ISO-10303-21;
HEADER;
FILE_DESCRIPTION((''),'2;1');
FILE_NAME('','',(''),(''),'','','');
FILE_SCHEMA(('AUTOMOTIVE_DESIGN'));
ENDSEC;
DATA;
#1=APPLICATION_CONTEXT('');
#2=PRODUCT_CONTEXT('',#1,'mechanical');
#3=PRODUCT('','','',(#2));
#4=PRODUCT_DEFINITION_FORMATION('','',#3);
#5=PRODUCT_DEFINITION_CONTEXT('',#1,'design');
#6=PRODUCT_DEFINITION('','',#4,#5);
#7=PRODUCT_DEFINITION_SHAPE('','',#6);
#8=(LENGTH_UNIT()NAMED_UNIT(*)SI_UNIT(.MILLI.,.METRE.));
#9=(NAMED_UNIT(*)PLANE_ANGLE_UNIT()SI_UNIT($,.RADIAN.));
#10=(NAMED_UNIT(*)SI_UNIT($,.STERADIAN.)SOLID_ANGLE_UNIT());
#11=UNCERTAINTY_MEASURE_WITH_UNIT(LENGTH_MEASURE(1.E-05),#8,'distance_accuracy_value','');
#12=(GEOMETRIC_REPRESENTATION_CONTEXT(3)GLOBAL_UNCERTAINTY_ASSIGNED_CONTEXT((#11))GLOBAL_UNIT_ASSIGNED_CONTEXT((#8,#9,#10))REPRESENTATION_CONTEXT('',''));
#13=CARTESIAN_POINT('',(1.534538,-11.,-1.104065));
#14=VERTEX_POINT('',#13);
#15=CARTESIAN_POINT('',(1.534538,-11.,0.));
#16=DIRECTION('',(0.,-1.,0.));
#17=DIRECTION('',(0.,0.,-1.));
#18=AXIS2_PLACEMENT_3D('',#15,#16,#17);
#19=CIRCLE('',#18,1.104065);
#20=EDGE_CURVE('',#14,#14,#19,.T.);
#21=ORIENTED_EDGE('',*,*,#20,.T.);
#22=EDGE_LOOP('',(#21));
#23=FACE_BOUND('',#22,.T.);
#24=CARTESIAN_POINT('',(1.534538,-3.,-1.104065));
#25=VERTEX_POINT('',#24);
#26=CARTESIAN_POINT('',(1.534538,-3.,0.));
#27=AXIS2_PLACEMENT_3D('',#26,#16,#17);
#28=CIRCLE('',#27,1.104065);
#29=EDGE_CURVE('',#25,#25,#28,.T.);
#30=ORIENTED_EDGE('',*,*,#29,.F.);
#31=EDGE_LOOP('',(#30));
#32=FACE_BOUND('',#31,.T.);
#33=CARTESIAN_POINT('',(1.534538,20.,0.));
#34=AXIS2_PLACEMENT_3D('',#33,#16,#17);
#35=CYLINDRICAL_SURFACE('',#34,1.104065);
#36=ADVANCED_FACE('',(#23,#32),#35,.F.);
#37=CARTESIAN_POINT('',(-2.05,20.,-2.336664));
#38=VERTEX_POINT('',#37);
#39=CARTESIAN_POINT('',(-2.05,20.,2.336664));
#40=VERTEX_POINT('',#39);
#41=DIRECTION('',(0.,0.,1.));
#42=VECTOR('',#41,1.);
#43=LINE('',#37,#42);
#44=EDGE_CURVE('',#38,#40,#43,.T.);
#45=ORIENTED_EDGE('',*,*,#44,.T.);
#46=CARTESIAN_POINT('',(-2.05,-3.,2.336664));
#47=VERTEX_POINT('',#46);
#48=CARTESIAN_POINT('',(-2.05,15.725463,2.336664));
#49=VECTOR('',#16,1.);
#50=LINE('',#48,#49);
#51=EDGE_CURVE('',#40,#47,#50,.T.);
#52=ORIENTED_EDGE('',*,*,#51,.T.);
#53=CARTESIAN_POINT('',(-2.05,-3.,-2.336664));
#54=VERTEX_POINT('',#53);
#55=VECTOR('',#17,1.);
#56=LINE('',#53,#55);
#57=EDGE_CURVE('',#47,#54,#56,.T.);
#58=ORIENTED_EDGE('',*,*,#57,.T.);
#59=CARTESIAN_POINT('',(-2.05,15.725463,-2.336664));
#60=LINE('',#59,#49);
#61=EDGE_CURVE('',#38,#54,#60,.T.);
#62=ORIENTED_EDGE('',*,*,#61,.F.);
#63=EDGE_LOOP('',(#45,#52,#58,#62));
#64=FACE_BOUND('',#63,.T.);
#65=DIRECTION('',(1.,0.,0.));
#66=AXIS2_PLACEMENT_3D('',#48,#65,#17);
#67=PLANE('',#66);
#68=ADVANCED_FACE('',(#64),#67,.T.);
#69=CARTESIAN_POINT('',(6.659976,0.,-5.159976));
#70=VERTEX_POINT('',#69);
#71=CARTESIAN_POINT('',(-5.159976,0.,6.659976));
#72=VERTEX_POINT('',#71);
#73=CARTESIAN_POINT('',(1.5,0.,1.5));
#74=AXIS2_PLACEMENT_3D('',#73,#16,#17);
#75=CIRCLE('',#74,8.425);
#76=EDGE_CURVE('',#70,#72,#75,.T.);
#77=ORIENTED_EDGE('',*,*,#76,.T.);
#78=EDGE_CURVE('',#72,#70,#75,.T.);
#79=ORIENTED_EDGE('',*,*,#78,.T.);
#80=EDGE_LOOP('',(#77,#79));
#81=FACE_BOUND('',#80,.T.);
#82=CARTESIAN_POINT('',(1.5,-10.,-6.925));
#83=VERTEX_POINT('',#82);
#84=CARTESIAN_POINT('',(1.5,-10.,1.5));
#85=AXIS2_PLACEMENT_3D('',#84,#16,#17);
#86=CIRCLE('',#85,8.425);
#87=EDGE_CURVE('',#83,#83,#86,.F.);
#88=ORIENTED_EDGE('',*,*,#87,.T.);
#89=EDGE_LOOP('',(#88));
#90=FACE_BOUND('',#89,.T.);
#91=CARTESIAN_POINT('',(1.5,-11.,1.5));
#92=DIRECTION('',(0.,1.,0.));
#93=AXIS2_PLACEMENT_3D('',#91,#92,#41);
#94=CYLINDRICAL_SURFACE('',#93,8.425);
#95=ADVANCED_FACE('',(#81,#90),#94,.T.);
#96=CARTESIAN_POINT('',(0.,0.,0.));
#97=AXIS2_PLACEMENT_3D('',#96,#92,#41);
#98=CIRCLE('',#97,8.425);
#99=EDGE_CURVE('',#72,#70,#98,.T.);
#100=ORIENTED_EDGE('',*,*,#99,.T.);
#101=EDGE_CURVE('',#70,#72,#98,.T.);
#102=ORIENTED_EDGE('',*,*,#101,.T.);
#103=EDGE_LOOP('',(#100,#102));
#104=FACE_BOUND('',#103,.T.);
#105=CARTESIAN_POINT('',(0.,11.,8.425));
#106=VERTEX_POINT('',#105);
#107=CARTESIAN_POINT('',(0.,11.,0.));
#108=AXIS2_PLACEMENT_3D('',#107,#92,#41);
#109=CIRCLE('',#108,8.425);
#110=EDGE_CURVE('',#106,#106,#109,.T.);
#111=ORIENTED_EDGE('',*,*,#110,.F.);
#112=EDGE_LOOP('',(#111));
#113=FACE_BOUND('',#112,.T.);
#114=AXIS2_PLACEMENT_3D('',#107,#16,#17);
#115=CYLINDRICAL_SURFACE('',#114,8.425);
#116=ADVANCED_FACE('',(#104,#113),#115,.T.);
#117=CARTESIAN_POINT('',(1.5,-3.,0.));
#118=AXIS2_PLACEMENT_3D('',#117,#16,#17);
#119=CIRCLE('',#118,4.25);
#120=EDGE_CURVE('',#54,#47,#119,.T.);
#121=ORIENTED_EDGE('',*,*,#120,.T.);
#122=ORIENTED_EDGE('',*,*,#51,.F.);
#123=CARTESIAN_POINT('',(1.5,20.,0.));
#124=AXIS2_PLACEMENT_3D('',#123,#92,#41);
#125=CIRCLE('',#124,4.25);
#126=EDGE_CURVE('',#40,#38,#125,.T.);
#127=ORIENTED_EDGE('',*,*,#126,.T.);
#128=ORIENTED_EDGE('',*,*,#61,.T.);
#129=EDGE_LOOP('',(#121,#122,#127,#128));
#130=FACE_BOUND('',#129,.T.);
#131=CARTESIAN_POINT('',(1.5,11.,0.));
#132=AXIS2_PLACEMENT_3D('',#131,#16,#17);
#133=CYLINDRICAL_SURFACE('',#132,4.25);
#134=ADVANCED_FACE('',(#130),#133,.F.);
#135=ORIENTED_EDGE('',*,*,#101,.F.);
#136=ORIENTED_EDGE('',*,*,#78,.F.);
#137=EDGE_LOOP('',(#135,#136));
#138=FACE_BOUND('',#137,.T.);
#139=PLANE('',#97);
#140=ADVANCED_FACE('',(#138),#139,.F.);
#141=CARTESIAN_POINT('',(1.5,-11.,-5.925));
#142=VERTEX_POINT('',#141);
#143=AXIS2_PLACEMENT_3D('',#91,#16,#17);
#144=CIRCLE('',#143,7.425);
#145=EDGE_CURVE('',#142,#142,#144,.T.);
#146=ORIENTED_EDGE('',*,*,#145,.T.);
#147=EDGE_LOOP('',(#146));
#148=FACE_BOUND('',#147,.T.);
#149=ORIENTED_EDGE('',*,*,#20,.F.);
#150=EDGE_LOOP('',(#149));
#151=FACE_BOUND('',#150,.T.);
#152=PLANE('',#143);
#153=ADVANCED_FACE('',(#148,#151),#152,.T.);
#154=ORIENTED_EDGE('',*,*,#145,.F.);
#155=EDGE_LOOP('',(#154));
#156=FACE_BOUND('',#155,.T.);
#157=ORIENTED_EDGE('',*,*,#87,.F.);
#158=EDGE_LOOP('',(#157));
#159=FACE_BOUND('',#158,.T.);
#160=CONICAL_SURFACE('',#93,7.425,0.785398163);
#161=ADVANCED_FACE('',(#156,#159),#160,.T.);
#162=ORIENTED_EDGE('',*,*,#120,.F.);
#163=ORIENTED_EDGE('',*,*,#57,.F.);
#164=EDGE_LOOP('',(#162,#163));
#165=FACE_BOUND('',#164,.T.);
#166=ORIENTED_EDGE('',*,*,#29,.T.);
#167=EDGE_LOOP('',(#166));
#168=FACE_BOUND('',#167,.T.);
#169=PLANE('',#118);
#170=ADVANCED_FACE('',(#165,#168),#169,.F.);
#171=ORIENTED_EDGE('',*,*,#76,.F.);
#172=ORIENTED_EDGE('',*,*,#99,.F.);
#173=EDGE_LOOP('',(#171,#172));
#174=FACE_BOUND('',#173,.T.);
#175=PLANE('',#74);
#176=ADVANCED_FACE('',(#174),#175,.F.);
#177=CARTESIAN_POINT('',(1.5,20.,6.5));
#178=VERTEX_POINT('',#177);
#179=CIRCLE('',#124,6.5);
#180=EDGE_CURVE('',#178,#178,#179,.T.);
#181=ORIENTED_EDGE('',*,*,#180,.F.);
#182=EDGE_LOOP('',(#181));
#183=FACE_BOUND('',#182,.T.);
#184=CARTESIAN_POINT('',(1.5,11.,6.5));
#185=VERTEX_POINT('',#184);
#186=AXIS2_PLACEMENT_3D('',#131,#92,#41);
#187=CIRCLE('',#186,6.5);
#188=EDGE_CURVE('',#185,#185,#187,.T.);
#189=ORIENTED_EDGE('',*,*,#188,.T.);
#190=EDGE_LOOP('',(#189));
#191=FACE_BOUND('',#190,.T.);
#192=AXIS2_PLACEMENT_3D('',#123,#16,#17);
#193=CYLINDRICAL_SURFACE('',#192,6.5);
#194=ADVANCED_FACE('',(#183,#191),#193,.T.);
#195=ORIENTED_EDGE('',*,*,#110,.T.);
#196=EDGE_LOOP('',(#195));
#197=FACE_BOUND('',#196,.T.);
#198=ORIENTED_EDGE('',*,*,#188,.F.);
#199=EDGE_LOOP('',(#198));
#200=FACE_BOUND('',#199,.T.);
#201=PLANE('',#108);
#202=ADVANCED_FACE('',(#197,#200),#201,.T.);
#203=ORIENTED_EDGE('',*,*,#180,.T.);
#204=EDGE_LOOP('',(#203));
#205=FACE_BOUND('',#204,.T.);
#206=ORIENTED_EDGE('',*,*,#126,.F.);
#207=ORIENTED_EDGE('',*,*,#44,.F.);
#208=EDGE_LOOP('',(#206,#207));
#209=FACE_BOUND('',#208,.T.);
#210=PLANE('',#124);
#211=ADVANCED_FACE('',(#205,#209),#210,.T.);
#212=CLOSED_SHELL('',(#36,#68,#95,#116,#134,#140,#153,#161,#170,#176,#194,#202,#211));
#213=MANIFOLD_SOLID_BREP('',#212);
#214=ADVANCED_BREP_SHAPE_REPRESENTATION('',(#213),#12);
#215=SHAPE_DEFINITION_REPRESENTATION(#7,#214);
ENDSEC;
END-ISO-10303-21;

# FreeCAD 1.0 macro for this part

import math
import FreeCAD as App
import Part
import Sketcher
Q = App.Units.Quantity


def edges_at(feature, points):
    """Names of the edges that pass closest to the given points."""
    edges = feature.Shape.Edges
    near = lambda p: min(range(len(edges)), key=lambda i: edges[i].distToShape(Part.Vertex(*p))[0])
    return sorted({f"Edge{near(p) + 1}" for p in points})

doc = App.newDocument("Part")
body = doc.addObject("PartDesign::Body", "Body")

# Sketch on XZ plane
sketch1 = body.newObject("Sketcher::SketchObject", "Sketch")
sketch1.AttachmentSupport = (doc.getObject("XZ_Plane"), [""])
sketch1.MapMode = "FlatFace"
sketch1.addGeometry(Part.Circle(App.Vector(0, 0, 0), App.Vector(0, 0, 1), 8), False)
sketch1.addConstraint([
    Sketcher.Constraint("Coincident", 0, 3, -1, 1),
    Sketcher.Constraint("Diameter", 0, Q("16.85 mm")),
])
pad1 = body.newObject("PartDesign::Pad", "Pad")
pad1.Profile = sketch1
pad1.Length = 11
pad1.Reversed = True

# Sketch on XZ plane
sketch2 = body.newObject("Sketcher::SketchObject", "Sketch001")
sketch2.AttachmentSupport = (doc.getObject("XZ_Plane"), [""])
sketch2.MapMode = "FlatFace"
sketch2.addGeometry(Part.Circle(App.Vector(2, 2, 0), App.Vector(0, 0, 1), 8), False)
sketch2.addConstraint([
    Sketcher.Constraint("Diameter", 0, Q("16.85 mm")),
    Sketcher.Constraint("DistanceX", -1, 1, 0, 3, Q("1.5 mm")),
    Sketcher.Constraint("DistanceY", -1, 1, 0, 3, Q("1.5 mm")),
])
pad2 = body.newObject("PartDesign::Pad", "Pad001")
pad2.Profile = sketch2
pad2.Length = 11

# Sketch on XZ plane
sketch3 = body.newObject("Sketcher::SketchObject", "Sketch002")
sketch3.AttachmentSupport = (doc.getObject("XZ_Plane"), [""])
sketch3.MapMode = "FlatFace"
sketch3.AttachmentOffset = App.Placement(App.Vector(0, 0, 11), App.Rotation())
sketch3.addGeometry(Part.Circle(App.Vector(1.5, 0, 0), App.Vector(0, 0, 1), 4.2), False)
sketch3.addConstraint([
    Sketcher.Constraint("PointOnObject", 0, 3, -1),
    Sketcher.Constraint("Diameter", 0, Q("8.5 mm")),
    Sketcher.Constraint("DistanceX", -1, 1, 0, 3, Q("1.5 mm")),
])
pocket1 = body.newObject("PartDesign::Pocket", "Pocket")
pocket1.Profile = sketch3
pocket1.Type = "ThroughAll"

# Sketch on XZ plane
sketch4 = body.newObject("Sketcher::SketchObject", "Sketch003")
sketch4.AttachmentSupport = (doc.getObject("XZ_Plane"), [""])
sketch4.MapMode = "FlatFace"
sketch4.AttachmentOffset = App.Placement(App.Vector(0, 0, 11), App.Rotation())
sketch4.addGeometry([
    Part.LineSegment(App.Vector(-2, -2.3, 0), App.Vector(-2, 2.3, 0)),
    Part.ArcOfCircle(Part.Circle(App.Vector(1.5, 0, 0), App.Vector(0, 0, 1), 4.2), math.radians(147), math.radians(213)),
], False)
sketch4.addConstraint([
    Sketcher.Constraint("Coincident", 0, 1, 1, 2),
    Sketcher.Constraint("Coincident", 1, 1, 0, 2),
    Sketcher.Constraint("Vertical", 0),
    Sketcher.Constraint("PointOnObject", 1, 3, -1),
    Sketcher.Constraint("Radius", 1, Q("4.25 mm")),
    Sketcher.Constraint("DistanceX", -1, 1, 1, 3, Q("1.5 mm")),
    Sketcher.Constraint("DistanceX", 0, 1, -1, 1, Q("2.05 mm")),
])
pad3 = body.newObject("PartDesign::Pad", "Pad002")
pad3.Profile = sketch4
pad3.Length = 22
pad3.Reversed = True
doc.recompute()

chamfer = body.newObject("PartDesign::Chamfer", "Chamfer")
chamfer.Base = (pad3, edges_at(pad3, [(8.16, -11, -3.66)]))
chamfer.Size = 1

# Sketch on XZ plane
sketch5 = body.newObject("Sketcher::SketchObject", "Sketch004")
sketch5.AttachmentSupport = (doc.getObject("XZ_Plane"), [""])
sketch5.MapMode = "FlatFace"
sketch5.AttachmentOffset = App.Placement(App.Vector(0, 0, -11), App.Rotation())
sketch5.addGeometry([
    Part.Circle(App.Vector(1.5, 0, 0), App.Vector(0, 0, 1), 6.5),
    Part.LineSegment(App.Vector(-2, 2.3, 0), App.Vector(-2, -2.3, 0)),
    Part.ArcOfCircle(Part.Circle(App.Vector(1.5, 0, 0), App.Vector(0, 0, 1), 4.2), math.radians(-147), math.radians(147)),
], False)
sketch5.addConstraint([
    Sketcher.Constraint("Coincident", 1, 1, 2, 2),
    Sketcher.Constraint("Coincident", 2, 1, 1, 2),
    Sketcher.Constraint("Vertical", 1),
    Sketcher.Constraint("Coincident", 2, 3, 0, 3),
    Sketcher.Constraint("PointOnObject", 0, 3, -1),
    Sketcher.Constraint("Diameter", 0, Q("13 mm")),
    Sketcher.Constraint("Radius", 2, Q("4.25 mm")),
    Sketcher.Constraint("DistanceX", -1, 1, 0, 3, Q("1.5 mm")),
    Sketcher.Constraint("DistanceX", 1, 1, -1, 1, Q("2.05 mm")),
])
pad4 = body.newObject("PartDesign::Pad", "Pad003")
pad4.Profile = sketch5
pad4.Length = 9
pad4.Reversed = True

# Sketch on XZ plane
sketch6 = body.newObject("Sketcher::SketchObject", "Sketch005")
sketch6.AttachmentSupport = (doc.getObject("XZ_Plane"), [""])
sketch6.MapMode = "FlatFace"
sketch6.AttachmentOffset = App.Placement(App.Vector(0, 0, 11), App.Rotation())
sketch6.addGeometry([
    Part.LineSegment(App.Vector(-2, 2.3, 0), App.Vector(-2, -2.3, 0)),
    Part.ArcOfCircle(Part.Circle(App.Vector(1.5, 0, 0), App.Vector(0, 0, 1), 4.2), math.radians(-147), math.radians(147)),
], False)
sketch6.addConstraint([
    Sketcher.Constraint("Coincident", 0, 1, 1, 2),
    Sketcher.Constraint("Coincident", 1, 1, 0, 2),
    Sketcher.Constraint("Vertical", 0),
    Sketcher.Constraint("PointOnObject", 1, 3, -1),
    Sketcher.Constraint("Radius", 1, Q("4.25 mm")),
    Sketcher.Constraint("DistanceX", -1, 1, 1, 3, Q("1.5 mm")),
    Sketcher.Constraint("DistanceX", 0, 1, -1, 1, Q("2.05 mm")),
])
pad5 = body.newObject("PartDesign::Pad", "Pad004")
pad5.Profile = sketch6
pad5.Length = 8
pad5.Reversed = True

# Sketch on XZ plane
sketch7 = body.newObject("Sketcher::SketchObject", "Sketch006")
sketch7.AttachmentSupport = (doc.getObject("XZ_Plane"), [""])
sketch7.MapMode = "FlatFace"
sketch7.AttachmentOffset = App.Placement(App.Vector(0, 0, 11), App.Rotation())
sketch7.addGeometry(Part.Circle(App.Vector(1.5, 0, 0), App.Vector(0, 0, 1), 1.1), False)
sketch7.addConstraint([
    Sketcher.Constraint("PointOnObject", 0, 3, -1),
    Sketcher.Constraint("Diameter", 0, Q("2.208131 mm")),
    Sketcher.Constraint("DistanceX", -1, 1, 0, 3, Q("1.534538 mm")),
])
pocket2 = body.newObject("PartDesign::Pocket", "Pocket001")
pocket2.Profile = sketch7
pocket2.Type = "ThroughAll"

doc.recompute()
